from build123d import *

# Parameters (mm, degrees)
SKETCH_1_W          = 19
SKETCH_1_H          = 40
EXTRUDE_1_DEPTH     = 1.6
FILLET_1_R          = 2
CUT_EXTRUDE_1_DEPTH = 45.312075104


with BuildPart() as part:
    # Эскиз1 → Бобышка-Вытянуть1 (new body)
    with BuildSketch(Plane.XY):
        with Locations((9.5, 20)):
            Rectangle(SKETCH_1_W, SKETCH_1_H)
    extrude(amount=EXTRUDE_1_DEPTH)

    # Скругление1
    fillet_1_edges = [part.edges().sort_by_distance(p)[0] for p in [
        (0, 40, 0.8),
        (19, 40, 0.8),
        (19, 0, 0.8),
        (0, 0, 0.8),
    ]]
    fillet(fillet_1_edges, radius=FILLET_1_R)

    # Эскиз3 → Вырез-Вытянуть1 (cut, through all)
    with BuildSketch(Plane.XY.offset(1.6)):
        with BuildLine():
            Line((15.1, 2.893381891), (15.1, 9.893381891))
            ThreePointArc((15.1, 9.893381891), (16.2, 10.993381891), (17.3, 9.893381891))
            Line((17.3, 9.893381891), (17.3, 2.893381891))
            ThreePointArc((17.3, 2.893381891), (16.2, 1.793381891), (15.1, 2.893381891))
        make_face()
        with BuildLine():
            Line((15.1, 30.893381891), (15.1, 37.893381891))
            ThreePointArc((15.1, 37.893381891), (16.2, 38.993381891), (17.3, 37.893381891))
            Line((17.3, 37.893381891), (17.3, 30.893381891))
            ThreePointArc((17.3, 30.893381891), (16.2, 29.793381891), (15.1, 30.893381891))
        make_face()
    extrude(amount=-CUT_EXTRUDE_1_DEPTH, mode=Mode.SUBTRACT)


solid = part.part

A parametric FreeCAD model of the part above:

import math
import FreeCAD as App
import Part
import Sketcher

V = App.Vector
Q = App.Units.Quantity


def edges_at(feature, points):
    """Names of the edges that pass closest to the given points."""
    edges = feature.Shape.Edges
    near = lambda p: min(range(len(edges)), key=lambda i: edges[i].distToShape(Part.Vertex(*p))[0])
    return sorted({f"Edge{near(p) + 1}" for p in points})


def add_polygon(sketch, points):
    """Adds a closed chain of lines whose ends are joined by coincident constraints."""
    first, n = sketch.GeometryCount, len(points)
    for a, b in zip(points, points[1:] + points[:1]):
        sketch.addGeometry(Part.LineSegment(App.Vector(*a, 0), App.Vector(*b, 0)), False)
    for i in range(n):
        sketch.addConstraint(Sketcher.Constraint("Coincident", first + i, 2, first + (i + 1) % n, 1))

doc = App.newDocument("Part")
body = doc.addObject("PartDesign::Body", "Body")

sketch1 = doc.addObject("Sketcher::SketchObject", "Sketch")
body.addObject(sketch1)
sketch1.AttachmentSupport = (doc.XY_Plane, [""])
sketch1.MapMode = "FlatFace"
add_polygon(sketch1, [(0, 40), (0, 0), (19, 0), (19, 40)])
sketch1.addConstraint([
    Sketcher.Constraint("Vertical", 0),
    Sketcher.Constraint("Horizontal", 1),
    Sketcher.Constraint("Vertical", 2),
    Sketcher.Constraint("Horizontal", 3),
    Sketcher.Constraint("Coincident", 0, 2, -1, 1),
    Sketcher.Constraint("DistanceX", 1, 1, 1, 2, Q("19 mm")),
    Sketcher.Constraint("DistanceY", 0, 2, 0, 1, Q("40 mm")),
])
pad1 = doc.addObject("PartDesign::Pad", "Pad")
body.addObject(pad1)
pad1.Profile = sketch1
pad1.Length = 1.6
doc.recompute()

fillet = doc.addObject("PartDesign::Fillet", "Fillet")
body.addObject(fillet)
fillet.Base = (pad1, edges_at(pad1, [
    (0, 40, 0.8),
    (19, 40, 0.8),
    (19, 0, 0.8),
    (0, 0, 0.8),
]))
fillet.Radius = 2

sketch2 = doc.addObject("Sketcher::SketchObject", "Sketch001")
body.addObject(sketch2)
sketch2.AttachmentSupport = (doc.XY_Plane, [""])
sketch2.MapMode = "FlatFace"
sketch2.AttachmentOffset = App.Placement(V(0, 0, 1.6), App.Rotation())
sketch2.addGeometry([
    Part.LineSegment(V(15.1, 9.9, 0), V(15.1, 2.9, 0)),
    Part.ArcOfCircle(Part.Circle(V(16.2, 2.9, 0), V(0, 0, 1), 1.1), math.radians(180), math.radians(360)),
    Part.LineSegment(V(17.3, 2.9, 0), V(17.3, 9.9, 0)),
    Part.ArcOfCircle(Part.Circle(V(16.2, 9.9, 0), V(0, 0, 1), 1.1), math.radians(0), math.radians(180)),
    Part.LineSegment(V(15.1, 37.9, 0), V(15.1, 30.9, 0)),
    Part.ArcOfCircle(Part.Circle(V(16.2, 30.9, 0), V(0, 0, 1), 1.1), math.radians(180), math.radians(360)),
    Part.LineSegment(V(17.3, 30.9, 0), V(17.3, 37.9, 0)),
    Part.ArcOfCircle(Part.Circle(V(16.2, 37.9, 0), V(0, 0, 1), 1.1), math.radians(0), math.radians(180)),
], False)
sketch2.addConstraint([
    Sketcher.Constraint("Tangent", 0, 2, 1, 1),
    Sketcher.Constraint("Tangent", 1, 2, 2, 1),
    Sketcher.Constraint("Tangent", 2, 2, 3, 1),
    Sketcher.Constraint("Tangent", 3, 2, 0, 1),
    Sketcher.Constraint("Tangent", 4, 2, 5, 1),
    Sketcher.Constraint("Tangent", 5, 2, 6, 1),
    Sketcher.Constraint("Tangent", 6, 2, 7, 1),
    Sketcher.Constraint("Tangent", 7, 2, 4, 1),
    Sketcher.Constraint("Vertical", 0),
    Sketcher.Constraint("Vertical", 2),
    Sketcher.Constraint("Vertical", 4),
    Sketcher.Constraint("Vertical", 6),
    Sketcher.Constraint("Equal", 3, 5),
    Sketcher.Constraint("Vertical", 3, 3, 5, 3),
    Sketcher.Constraint("Equal", 2, 4),
    Sketcher.Constraint("Radius", 1, Q("1.1 mm")),
    Sketcher.Constraint("DistanceY", 0, 2, 0, 1, Q("7 mm")),
    Sketcher.Constraint("DistanceY", 3, 3, 5, 3, Q("21 mm")),
    Sketcher.Constraint("DistanceX", -1, 1, 1, 3, Q("16.2 mm")),
    Sketcher.Constraint("DistanceY", -1, 1, 1, 3, Q("2.893382 mm")),
])
pocket1 = doc.addObject("PartDesign::Pocket", "Pocket")
body.addObject(pocket1)
pocket1.Profile = sketch2
pocket1.Type = "ThroughAll"

doc.recompute()
